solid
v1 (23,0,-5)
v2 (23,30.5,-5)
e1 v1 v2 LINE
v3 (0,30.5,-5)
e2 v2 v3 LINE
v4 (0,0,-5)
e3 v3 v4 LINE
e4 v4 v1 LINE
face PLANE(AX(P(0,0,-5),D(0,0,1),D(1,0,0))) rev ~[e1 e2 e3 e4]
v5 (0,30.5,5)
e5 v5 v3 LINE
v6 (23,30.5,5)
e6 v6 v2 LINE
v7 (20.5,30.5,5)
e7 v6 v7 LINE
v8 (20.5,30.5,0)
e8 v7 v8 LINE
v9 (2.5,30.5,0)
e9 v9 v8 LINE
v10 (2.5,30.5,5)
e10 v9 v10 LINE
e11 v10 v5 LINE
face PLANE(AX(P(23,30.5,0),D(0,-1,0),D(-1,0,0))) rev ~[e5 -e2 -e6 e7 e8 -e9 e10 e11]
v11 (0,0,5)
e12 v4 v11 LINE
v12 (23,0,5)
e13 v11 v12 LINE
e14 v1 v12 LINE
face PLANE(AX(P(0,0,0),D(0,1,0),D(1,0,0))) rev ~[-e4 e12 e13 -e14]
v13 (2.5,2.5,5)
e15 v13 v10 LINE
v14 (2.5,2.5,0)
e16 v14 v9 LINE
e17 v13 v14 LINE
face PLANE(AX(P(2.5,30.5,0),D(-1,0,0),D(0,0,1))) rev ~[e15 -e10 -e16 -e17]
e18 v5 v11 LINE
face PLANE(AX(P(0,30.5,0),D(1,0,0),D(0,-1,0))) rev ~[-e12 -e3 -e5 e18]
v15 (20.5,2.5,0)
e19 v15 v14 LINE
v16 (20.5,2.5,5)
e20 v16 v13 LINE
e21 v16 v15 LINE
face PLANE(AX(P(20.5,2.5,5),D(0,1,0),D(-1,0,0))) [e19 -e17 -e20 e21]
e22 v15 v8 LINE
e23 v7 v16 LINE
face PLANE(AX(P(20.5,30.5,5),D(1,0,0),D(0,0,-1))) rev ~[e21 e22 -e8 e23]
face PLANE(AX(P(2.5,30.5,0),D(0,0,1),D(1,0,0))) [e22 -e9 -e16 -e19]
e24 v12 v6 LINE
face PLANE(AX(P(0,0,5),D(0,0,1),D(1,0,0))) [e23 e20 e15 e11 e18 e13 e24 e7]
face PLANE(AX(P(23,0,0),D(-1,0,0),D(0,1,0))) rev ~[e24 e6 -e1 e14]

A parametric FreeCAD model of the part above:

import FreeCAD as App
import Part
import Sketcher
from FreeCAD import Vector

doc = App.newDocument("Part")
body = doc.addObject("PartDesign::Body", "Body")

# Sketch on XY plane
sketch1 = body.newObject("Sketcher::SketchObject", "Sketch")
sketch1.AttachmentSupport = (doc.getObject("XY_Plane"), [""])
sketch1.MapMode = "FlatFace"
sketch1.addGeometry([
    Part.LineSegment(Vector(0, 30.5, 0), Vector(0, 0, 0)),
    Part.LineSegment(Vector(0, 0, 0), Vector(23, 0, 0)),
    Part.LineSegment(Vector(23, 0, 0), Vector(23, 30.5, 0)),
    Part.LineSegment(Vector(23, 30.5, 0), Vector(0, 30.5, 0)),
], False)
sketch1.addConstraint([
    Sketcher.Constraint("Coincident", 0, 2, 1, 1),
    Sketcher.Constraint("Coincident", 1, 2, 2, 1),
    Sketcher.Constraint("Coincident", 2, 2, 3, 1),
    Sketcher.Constraint("Coincident", 3, 2, 0, 1),
    Sketcher.Constraint("Vertical", 0),
    Sketcher.Constraint("Horizontal", 1),
    Sketcher.Constraint("Vertical", 2),
    Sketcher.Constraint("Horizontal", 3),
    Sketcher.Constraint("Coincident", 0, 2, -1, 1),
    Sketcher.Constraint("DistanceX", 1, 1, 1, 2, 23.0),
    Sketcher.Constraint("DistanceY", 0, 2, 0, 1, 30.5),
])
pad1 = body.newObject("PartDesign::Pad", "Pad")
pad1.Profile = sketch1
pad1.Length = 10
pad1.Midplane = True

# Sketch on XY plane
sketch2 = body.newObject("Sketcher::SketchObject", "Sketch001")
sketch2.AttachmentSupport = (doc.getObject("XY_Plane"), [""])
sketch2.MapMode = "FlatFace"
sketch2.AttachmentOffset = App.Placement(Vector(0, 0, 5), App.Rotation())
sketch2.addGeometry([
    Part.LineSegment(Vector(20.5, 28, 0), Vector(2.5, 28, 0)),
    Part.LineSegment(Vector(2.5, 28, 0), Vector(2.5, 2.5, 0)),
    Part.LineSegment(Vector(2.5, 2.5, 0), Vector(20.5, 2.5, 0)),
    Part.LineSegment(Vector(20.5, 2.5, 0), Vector(20.5, 28, 0)),
], False)
sketch2.addConstraint([
    Sketcher.Constraint("Coincident", 0, 2, 1, 1),
    Sketcher.Constraint("Coincident", 1, 2, 2, 1),
    Sketcher.Constraint("Coincident", 2, 2, 3, 1),
    Sketcher.Constraint("Coincident", 3, 2, 0, 1),
    Sketcher.Constraint("Horizontal", 0),
    Sketcher.Constraint("Vertical", 1),
    Sketcher.Constraint("Horizontal", 2),
    Sketcher.Constraint("Vertical", 3),
    Sketcher.Constraint("DistanceX", 0, 2, 0, 1, 18.0),
    Sketcher.Constraint("DistanceY", 1, 2, 1, 1, 25.5),
    Sketcher.Constraint("DistanceY", -1, 1, 0, 2, 28.0),
    Sketcher.Constraint("DistanceX", -1, 1, 0, 2, 2.5),
])
pocket1 = body.newObject("PartDesign::Pocket", "Pocket")
pocket1.Profile = sketch2
pocket1.Length = 5

# Sketch on XZ plane
sketch3 = body.newObject("Sketcher::SketchObject", "Sketch002")
sketch3.AttachmentSupport = (doc.getObject("XZ_Plane"), [""])
sketch3.MapMode = "FlatFace"
sketch3.AttachmentOffset = App.Placement(Vector(0, 0, -30.5), App.Rotation())
sketch3.addGeometry([
    Part.LineSegment(Vector(2.5, 5, 0), Vector(20.5, 5, 0)),
    Part.LineSegment(Vector(20.5, 5, 0), Vector(20.5, 0, 0)),
    Part.LineSegment(Vector(20.5, 0, 0), Vector(2.5, 0, 0)),
    Part.LineSegment(Vector(2.5, 0, 0), Vector(2.5, 5, 0)),
], False)
sketch3.addConstraint([
    Sketcher.Constraint("Coincident", 0, 2, 1, 1),
    Sketcher.Constraint("Coincident", 1, 2, 2, 1),
    Sketcher.Constraint("Coincident", 2, 2, 3, 1),
    Sketcher.Constraint("Coincident", 3, 2, 0, 1),
    Sketcher.Constraint("Horizontal", 0),
    Sketcher.Constraint("Vertical", 1),
    Sketcher.Constraint("Horizontal", 2),
    Sketcher.Constraint("Vertical", 3),
    Sketcher.Constraint("PointOnObject", 1, 2, -1),
    Sketcher.Constraint("DistanceX", 0, 1, 0, 2, 18.0),
    Sketcher.Constraint("DistanceY", 1, 2, 1, 1, 5.0),
    Sketcher.Constraint("DistanceX", -1, 1, 0, 2, 20.5),
])
pocket2 = body.newObject("PartDesign::Pocket", "Pocket001")
pocket2.Profile = sketch3
pocket2.Length = 5
pocket2.Reversed = True

doc.recompute()
